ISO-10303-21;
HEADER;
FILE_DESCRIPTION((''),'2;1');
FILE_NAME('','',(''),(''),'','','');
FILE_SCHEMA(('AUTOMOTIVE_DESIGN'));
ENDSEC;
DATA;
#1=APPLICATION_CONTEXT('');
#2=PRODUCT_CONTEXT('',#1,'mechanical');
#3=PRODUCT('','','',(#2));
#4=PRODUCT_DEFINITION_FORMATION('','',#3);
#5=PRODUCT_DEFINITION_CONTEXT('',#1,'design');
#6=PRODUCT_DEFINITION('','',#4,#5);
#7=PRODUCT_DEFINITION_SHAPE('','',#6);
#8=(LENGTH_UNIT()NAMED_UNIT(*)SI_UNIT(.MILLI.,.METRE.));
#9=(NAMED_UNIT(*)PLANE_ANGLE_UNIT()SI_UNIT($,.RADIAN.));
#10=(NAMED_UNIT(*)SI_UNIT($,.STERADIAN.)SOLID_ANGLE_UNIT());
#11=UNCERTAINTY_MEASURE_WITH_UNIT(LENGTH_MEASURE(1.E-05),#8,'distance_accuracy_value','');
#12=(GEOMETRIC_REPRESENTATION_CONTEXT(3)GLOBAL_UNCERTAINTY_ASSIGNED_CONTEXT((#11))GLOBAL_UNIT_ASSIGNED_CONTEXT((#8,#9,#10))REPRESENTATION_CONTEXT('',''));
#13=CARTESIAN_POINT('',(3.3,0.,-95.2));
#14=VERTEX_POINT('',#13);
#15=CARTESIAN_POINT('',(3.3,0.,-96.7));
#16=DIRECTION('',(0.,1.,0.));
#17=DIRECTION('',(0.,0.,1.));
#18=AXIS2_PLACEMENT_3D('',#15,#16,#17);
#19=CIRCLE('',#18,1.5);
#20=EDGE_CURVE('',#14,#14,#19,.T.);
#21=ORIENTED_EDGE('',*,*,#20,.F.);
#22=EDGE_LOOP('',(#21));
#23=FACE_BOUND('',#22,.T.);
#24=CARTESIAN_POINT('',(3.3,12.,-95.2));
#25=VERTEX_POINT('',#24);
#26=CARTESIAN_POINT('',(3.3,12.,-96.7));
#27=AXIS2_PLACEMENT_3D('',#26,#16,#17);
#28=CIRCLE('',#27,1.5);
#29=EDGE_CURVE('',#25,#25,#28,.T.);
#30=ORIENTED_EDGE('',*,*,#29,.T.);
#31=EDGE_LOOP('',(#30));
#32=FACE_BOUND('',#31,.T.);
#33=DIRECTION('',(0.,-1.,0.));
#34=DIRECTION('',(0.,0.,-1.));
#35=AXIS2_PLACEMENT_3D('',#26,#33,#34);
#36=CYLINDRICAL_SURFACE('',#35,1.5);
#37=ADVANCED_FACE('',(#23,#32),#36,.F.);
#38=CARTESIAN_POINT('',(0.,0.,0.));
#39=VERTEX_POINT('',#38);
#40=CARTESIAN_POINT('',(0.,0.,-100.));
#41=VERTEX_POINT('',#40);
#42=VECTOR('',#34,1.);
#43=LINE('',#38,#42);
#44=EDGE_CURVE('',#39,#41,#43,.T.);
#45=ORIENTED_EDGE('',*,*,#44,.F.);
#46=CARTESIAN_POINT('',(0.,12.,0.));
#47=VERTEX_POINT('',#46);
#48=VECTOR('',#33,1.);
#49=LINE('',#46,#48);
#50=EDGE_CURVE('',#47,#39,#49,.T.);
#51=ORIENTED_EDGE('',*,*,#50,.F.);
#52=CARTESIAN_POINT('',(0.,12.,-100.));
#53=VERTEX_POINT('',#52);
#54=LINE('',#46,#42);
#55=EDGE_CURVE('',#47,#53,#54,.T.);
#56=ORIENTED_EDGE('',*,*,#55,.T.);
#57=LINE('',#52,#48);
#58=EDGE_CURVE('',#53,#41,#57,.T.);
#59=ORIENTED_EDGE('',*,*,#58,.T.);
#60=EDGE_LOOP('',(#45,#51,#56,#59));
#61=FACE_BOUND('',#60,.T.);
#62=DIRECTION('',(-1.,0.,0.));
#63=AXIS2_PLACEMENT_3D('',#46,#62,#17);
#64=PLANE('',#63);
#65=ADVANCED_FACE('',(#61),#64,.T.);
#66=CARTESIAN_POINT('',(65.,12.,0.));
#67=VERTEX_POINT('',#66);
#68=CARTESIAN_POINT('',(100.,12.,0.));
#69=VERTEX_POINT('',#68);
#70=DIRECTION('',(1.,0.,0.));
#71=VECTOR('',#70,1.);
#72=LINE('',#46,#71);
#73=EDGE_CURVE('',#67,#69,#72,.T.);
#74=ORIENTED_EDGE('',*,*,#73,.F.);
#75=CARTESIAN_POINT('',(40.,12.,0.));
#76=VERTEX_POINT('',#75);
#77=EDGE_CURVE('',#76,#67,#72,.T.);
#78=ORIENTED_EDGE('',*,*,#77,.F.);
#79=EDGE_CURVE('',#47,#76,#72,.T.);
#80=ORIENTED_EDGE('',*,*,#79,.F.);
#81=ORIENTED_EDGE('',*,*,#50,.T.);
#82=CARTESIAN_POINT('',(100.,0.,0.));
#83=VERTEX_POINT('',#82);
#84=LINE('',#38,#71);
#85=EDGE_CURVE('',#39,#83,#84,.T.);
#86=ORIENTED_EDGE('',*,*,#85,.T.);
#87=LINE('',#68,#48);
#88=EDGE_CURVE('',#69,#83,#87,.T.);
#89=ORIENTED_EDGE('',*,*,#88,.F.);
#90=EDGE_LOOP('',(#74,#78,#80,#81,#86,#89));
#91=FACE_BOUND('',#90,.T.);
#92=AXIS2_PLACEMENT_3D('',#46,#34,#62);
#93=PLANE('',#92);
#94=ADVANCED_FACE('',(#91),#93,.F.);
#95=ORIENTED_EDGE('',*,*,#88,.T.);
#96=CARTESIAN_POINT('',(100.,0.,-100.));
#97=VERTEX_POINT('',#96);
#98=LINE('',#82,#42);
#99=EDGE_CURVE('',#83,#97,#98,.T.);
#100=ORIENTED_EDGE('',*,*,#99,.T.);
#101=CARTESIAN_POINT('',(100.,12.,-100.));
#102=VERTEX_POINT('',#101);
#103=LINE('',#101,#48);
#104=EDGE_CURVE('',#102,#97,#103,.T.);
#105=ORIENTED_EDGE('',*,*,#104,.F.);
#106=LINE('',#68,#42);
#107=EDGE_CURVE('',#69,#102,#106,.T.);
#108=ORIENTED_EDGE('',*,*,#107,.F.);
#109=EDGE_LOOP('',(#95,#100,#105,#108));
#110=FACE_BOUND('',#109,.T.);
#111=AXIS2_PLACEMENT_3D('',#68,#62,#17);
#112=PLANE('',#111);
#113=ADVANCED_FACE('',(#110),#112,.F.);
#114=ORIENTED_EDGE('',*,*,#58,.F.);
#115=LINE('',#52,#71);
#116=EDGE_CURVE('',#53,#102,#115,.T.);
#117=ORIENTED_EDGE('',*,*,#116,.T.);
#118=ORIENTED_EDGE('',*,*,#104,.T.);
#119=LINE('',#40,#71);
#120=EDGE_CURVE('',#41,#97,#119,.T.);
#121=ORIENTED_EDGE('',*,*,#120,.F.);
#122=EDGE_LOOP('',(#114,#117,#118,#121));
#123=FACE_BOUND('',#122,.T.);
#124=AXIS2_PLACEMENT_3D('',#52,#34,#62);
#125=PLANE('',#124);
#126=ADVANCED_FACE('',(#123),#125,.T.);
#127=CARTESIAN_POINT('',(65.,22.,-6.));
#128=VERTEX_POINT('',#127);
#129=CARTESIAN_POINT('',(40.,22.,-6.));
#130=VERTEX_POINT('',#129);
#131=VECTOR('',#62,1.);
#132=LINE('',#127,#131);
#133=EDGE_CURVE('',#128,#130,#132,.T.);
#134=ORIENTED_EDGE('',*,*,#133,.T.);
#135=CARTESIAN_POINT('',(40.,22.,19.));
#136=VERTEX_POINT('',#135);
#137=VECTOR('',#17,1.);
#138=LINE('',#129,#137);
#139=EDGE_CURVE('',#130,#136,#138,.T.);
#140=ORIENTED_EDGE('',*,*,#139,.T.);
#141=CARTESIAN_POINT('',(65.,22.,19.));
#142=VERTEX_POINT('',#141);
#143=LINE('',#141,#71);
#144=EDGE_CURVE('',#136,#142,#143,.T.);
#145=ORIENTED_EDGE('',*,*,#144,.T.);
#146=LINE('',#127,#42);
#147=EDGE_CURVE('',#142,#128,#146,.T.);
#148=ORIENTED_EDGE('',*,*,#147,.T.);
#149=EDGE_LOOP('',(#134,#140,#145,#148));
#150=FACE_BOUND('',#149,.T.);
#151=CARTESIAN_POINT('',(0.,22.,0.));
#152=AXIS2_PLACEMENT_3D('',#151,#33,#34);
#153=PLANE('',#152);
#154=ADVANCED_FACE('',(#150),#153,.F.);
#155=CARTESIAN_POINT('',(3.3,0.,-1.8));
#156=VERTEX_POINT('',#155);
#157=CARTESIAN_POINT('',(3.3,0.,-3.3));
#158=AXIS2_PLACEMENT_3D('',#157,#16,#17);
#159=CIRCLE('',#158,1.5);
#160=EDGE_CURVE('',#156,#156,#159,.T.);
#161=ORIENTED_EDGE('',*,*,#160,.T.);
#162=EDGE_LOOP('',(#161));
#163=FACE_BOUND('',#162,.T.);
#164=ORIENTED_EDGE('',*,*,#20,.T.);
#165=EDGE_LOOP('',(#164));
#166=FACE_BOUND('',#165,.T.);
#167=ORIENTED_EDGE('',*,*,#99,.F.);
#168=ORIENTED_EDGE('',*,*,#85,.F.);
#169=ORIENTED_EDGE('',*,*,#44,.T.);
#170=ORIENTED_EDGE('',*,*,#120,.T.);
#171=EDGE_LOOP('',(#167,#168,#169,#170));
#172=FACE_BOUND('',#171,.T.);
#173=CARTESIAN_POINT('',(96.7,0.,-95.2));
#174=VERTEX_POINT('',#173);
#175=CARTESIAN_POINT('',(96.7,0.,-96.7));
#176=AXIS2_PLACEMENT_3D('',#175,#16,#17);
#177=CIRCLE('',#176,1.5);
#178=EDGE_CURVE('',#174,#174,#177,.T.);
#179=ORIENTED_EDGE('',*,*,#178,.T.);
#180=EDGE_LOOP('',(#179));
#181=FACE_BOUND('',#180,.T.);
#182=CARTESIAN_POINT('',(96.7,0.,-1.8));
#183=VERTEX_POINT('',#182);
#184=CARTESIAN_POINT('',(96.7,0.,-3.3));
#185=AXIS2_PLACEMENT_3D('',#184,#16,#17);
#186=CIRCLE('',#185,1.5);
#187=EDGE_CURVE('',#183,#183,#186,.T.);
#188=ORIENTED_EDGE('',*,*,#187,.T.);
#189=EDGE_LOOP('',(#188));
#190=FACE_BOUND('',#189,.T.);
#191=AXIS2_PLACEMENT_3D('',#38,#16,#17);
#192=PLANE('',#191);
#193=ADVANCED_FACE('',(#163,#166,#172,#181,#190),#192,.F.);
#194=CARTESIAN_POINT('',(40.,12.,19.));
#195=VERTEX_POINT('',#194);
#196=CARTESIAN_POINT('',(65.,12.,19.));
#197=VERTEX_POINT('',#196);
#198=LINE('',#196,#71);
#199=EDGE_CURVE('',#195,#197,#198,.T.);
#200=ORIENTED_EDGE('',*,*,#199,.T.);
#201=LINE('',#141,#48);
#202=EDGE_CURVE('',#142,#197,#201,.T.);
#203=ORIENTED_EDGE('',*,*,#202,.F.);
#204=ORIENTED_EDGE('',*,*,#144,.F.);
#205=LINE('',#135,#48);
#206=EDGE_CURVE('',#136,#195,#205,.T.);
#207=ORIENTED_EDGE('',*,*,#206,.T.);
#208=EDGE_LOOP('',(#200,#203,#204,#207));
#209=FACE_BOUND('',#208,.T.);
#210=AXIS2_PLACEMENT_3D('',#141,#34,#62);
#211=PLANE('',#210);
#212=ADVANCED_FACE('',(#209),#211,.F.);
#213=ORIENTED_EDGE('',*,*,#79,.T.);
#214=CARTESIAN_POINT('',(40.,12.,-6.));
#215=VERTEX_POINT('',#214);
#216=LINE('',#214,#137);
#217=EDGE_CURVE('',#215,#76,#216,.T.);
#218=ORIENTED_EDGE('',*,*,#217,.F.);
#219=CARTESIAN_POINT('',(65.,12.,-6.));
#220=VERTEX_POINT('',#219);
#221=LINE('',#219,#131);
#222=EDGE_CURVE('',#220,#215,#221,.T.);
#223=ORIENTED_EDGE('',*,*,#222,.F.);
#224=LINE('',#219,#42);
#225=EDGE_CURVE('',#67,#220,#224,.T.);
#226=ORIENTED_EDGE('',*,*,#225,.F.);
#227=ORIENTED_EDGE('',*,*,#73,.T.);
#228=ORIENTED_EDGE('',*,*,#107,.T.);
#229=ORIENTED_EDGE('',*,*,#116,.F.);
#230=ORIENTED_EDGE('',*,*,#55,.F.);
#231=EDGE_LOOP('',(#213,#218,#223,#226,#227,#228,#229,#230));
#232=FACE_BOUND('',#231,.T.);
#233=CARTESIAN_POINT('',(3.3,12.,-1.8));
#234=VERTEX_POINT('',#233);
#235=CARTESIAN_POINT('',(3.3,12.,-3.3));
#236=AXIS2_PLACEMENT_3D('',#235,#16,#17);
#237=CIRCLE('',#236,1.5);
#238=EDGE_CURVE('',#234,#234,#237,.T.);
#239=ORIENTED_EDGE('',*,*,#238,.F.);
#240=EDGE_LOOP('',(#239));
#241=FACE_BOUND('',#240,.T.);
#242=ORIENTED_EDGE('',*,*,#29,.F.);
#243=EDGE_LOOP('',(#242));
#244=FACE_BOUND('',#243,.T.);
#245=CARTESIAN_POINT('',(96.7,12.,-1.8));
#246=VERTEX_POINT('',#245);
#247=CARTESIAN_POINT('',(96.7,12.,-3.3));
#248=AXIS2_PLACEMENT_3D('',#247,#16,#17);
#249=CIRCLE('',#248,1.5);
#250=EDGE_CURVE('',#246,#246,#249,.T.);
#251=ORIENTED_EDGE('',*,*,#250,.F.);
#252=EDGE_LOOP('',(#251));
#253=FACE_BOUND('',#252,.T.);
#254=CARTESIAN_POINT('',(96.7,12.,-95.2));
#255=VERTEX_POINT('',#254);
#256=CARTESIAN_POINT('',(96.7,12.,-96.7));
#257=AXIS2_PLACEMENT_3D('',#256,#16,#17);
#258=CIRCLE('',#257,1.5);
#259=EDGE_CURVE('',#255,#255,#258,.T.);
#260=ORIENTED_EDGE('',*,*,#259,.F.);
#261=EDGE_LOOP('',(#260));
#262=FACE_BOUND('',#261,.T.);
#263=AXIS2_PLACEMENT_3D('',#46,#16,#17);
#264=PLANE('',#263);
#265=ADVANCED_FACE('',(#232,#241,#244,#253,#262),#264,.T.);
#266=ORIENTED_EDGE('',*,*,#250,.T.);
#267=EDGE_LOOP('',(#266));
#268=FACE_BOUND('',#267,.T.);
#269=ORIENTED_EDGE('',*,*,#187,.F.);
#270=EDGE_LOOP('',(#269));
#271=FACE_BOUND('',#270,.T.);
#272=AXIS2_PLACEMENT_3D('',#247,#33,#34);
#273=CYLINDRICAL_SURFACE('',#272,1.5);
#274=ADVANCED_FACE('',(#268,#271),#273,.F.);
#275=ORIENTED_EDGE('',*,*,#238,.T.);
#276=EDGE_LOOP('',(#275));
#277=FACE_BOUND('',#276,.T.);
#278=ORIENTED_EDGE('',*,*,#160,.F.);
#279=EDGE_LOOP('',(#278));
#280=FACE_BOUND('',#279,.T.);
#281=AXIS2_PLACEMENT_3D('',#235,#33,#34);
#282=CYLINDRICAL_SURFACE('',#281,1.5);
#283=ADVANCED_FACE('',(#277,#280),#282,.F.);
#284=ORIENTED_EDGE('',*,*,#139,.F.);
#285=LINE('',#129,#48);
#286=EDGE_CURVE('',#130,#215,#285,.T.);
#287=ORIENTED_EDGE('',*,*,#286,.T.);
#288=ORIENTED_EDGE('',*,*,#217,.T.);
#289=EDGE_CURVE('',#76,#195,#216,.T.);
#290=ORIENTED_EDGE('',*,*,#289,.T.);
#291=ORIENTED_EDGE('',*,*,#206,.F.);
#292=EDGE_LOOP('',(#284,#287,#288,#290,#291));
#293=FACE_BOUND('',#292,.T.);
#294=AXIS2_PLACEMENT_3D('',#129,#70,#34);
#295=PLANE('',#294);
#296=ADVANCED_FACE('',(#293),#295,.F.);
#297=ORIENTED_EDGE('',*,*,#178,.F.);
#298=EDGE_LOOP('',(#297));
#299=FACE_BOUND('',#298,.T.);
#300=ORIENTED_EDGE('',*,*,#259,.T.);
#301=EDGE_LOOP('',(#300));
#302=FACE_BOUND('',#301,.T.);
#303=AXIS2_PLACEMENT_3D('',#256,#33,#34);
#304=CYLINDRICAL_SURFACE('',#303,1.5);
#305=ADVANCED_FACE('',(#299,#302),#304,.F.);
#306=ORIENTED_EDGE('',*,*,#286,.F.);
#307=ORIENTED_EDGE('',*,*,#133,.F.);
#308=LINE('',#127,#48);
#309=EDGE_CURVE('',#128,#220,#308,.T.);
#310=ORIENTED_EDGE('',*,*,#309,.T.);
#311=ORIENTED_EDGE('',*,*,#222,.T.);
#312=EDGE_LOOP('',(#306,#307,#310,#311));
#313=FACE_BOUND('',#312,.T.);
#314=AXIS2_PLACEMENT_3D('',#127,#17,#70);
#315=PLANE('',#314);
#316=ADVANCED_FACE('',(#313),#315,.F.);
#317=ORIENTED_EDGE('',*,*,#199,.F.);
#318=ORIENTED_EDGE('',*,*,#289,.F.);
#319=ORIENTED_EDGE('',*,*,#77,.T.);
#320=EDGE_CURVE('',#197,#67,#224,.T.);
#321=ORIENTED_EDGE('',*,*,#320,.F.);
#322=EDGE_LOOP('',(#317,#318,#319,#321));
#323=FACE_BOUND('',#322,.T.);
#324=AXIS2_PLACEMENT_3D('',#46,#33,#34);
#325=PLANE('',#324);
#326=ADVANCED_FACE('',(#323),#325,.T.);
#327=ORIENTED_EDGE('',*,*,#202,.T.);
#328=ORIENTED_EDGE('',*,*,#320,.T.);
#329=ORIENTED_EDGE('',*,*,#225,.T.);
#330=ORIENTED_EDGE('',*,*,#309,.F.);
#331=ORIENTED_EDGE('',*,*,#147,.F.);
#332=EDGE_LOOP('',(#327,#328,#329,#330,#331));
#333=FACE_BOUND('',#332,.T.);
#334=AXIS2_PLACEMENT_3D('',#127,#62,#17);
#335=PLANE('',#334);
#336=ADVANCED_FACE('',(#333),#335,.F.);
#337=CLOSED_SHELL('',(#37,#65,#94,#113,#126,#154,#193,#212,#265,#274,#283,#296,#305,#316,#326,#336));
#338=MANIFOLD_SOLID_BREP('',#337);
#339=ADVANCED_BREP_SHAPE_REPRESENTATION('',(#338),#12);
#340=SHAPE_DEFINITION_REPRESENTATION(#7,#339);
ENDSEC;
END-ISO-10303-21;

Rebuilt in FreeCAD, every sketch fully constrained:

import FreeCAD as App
import Part
import Sketcher


def add_polygon(sketch, points):
    """Adds a closed chain of lines whose ends are joined by coincident constraints."""
    first, n = sketch.GeometryCount, len(points)
    for a, b in zip(points, points[1:] + points[:1]):
        sketch.addGeometry(Part.LineSegment(App.Vector(*a, 0), App.Vector(*b, 0)), False)
    for i in range(n):
        sketch.addConstraint(Sketcher.Constraint("Coincident", first + i, 2, first + (i + 1) % n, 1))

doc = App.newDocument("Part")
body = doc.addObject("PartDesign::Body", "Body")

# Sketch on XZ plane
sketch1 = body.newObject("Sketcher::SketchObject", "Sketch")
sketch1.AttachmentSupport = (doc.getObject("XZ_Plane"), [""])
sketch1.MapMode = "FlatFace"
add_polygon(sketch1, [(0, -100), (0, 0), (100, 0), (100, -100)])  # lines 0-3
sketch1.addGeometry(Part.Circle(App.Vector(3.3, -3.3, 0), App.Vector(0, 0, 1), 1.5), False)  # 4
sketch1.addGeometry(Part.Circle(App.Vector(96.7, -3.3, 0), App.Vector(0, 0, 1), 1.5), False)  # 5
sketch1.addGeometry(Part.Circle(App.Vector(3.3, -96.7, 0), App.Vector(0, 0, 1), 1.5), False)  # 6
sketch1.addGeometry(Part.Circle(App.Vector(96.7, -96.7, 0), App.Vector(0, 0, 1), 1.5), False)  # 7
sketch1.addConstraint(Sketcher.Constraint("Vertical", 0))
sketch1.addConstraint(Sketcher.Constraint("Horizontal", 1))
sketch1.addConstraint(Sketcher.Constraint("Vertical", 2))
sketch1.addConstraint(Sketcher.Constraint("Horizontal", 3))
sketch1.addConstraint(Sketcher.Constraint("Coincident", 0, 2, -1, 1))
sketch1.addConstraint(Sketcher.Constraint("Equal", 4, 5))
sketch1.addConstraint(Sketcher.Constraint("Equal", 5, 6))
sketch1.addConstraint(Sketcher.Constraint("Equal", 6, 7))
sketch1.addConstraint(Sketcher.Constraint("Horizontal", 4, 3, 5, 3))
sketch1.addConstraint(Sketcher.Constraint("Horizontal", 6, 3, 7, 3))
sketch1.addConstraint(Sketcher.Constraint("Vertical", 4, 3, 6, 3))
sketch1.addConstraint(Sketcher.Constraint("Vertical", 5, 3, 7, 3))
sketch1.addConstraint(Sketcher.Constraint("Equal", 3, 0))
sketch1.addConstraint(Sketcher.Constraint("Diameter", 4, 3.0))
sketch1.addConstraint(Sketcher.Constraint("DistanceX", 1, 1, 1, 2, 100.0))
sketch1.addConstraint(Sketcher.Constraint("DistanceX", -1, 1, 4, 3, 3.3))
sketch1.addConstraint(Sketcher.Constraint("DistanceY", 4, 3, -1, 1, 3.3))
sketch1.addConstraint(Sketcher.Constraint("DistanceX", -1, 1, 5, 3, 96.7))
sketch1.addConstraint(Sketcher.Constraint("DistanceY", 6, 3, -1, 1, 96.7))
pad1 = body.newObject("PartDesign::Pad", "Pad")
pad1.Profile = sketch1
pad1.Length = 12
pad1.Reversed = True

# Sketch on XZ plane
sketch2 = body.newObject("Sketcher::SketchObject", "Sketch001")
sketch2.AttachmentSupport = (doc.getObject("XZ_Plane"), [""])
sketch2.MapMode = "FlatFace"
sketch2.AttachmentOffset = App.Placement(App.Vector(0, 0, -12), App.Rotation())
add_polygon(sketch2, [(40, -6), (40, 19), (65, 19), (65, -6)])  # lines 0-3
sketch2.addConstraint(Sketcher.Constraint("Vertical", 0))
sketch2.addConstraint(Sketcher.Constraint("Horizontal", 1))
sketch2.addConstraint(Sketcher.Constraint("Vertical", 2))
sketch2.addConstraint(Sketcher.Constraint("Horizontal", 3))
sketch2.addConstraint(Sketcher.Constraint("Equal", 3, 0))
sketch2.addConstraint(Sketcher.Constraint("DistanceX", 1, 1, 1, 2, 25.0))
sketch2.addConstraint(Sketcher.Constraint("DistanceX", -1, 1, 0, 2, 40.0))
sketch2.addConstraint(Sketcher.Constraint("DistanceY", -1, 1, 0, 2, 19.0))
pad2 = body.newObject("PartDesign::Pad", "Pad001")
pad2.Profile = sketch2
pad2.Length = 10
pad2.Reversed = True

doc.recompute()
